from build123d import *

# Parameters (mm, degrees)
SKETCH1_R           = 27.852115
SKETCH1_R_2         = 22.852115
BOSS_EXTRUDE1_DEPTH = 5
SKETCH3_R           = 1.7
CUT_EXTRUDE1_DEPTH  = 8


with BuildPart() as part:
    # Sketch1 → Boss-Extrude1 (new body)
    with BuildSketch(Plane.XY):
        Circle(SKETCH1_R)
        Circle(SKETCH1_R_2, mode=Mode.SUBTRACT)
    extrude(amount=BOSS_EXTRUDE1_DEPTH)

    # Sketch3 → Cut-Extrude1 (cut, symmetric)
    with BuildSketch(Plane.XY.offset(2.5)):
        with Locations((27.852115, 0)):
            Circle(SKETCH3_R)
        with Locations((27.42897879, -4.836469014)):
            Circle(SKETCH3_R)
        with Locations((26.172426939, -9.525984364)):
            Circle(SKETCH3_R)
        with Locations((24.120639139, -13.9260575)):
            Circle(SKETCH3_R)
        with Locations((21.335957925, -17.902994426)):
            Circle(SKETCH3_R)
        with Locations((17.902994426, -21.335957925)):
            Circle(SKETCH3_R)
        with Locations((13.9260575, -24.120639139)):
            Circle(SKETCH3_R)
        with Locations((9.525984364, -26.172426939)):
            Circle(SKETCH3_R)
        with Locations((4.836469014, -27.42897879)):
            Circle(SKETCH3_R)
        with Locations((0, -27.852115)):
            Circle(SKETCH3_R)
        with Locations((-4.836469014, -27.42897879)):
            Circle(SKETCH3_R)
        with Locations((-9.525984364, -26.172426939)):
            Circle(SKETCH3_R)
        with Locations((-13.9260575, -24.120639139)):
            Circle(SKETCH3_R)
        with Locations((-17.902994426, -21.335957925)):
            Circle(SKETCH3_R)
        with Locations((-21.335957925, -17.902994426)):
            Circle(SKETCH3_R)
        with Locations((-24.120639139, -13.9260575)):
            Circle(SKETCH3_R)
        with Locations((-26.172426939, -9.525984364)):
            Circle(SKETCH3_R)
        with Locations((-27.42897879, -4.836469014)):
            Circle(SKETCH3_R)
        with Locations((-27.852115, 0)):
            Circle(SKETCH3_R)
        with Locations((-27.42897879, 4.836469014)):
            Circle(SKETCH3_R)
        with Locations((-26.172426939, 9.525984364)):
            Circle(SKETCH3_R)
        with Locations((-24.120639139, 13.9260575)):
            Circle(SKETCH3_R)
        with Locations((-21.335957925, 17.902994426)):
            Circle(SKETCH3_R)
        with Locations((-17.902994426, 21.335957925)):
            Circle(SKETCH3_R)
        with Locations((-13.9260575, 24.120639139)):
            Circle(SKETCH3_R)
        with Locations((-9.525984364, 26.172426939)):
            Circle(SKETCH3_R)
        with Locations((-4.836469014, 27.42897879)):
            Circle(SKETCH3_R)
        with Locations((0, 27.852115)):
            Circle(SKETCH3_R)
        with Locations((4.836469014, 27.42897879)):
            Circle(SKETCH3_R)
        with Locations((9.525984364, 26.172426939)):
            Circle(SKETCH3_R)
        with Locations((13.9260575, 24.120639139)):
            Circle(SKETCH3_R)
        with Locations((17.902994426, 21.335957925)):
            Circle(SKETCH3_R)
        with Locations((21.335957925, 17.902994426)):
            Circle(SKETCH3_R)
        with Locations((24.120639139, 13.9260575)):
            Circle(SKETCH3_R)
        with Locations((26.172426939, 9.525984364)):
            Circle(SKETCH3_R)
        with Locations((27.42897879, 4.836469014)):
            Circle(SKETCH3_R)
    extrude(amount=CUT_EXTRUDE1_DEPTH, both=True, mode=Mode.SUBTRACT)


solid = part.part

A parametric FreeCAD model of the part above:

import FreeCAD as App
import Part
import Sketcher

V = App.Vector

doc = App.newDocument("Part")
params = doc.addObject("Spreadsheet::Sheet", "Params")
for row, (alias, value) in enumerate([
    ("pad1_length", "5 mm"),
    ("sketch2_diameter", "3.4 mm"),
    ("pocket1_length", "16 mm"),
], start=1):
    params.set(f"A{row}", alias)
    params.set(f"B{row}", "=" + value)
    params.setAlias(f"B{row}", alias)

body = doc.addObject("PartDesign::Body", "Body")

sketch1 = body.newObject("Sketcher::SketchObject", "Sketch")
sketch1.AttachmentSupport = (doc.getObject("XY_Plane"), [""])
sketch1.MapMode = "FlatFace"
sketch1.addGeometry([
    Part.Circle(V(0, 0, 0), V(0, 0, 1), 27.852115),
    Part.Circle(V(0, 0, 0), V(0, 0, 1), 22.852115),
], False)
sketch1.addConstraint([
    Sketcher.Constraint("Coincident", 0, 3, -1, 1),
    Sketcher.Constraint("Coincident", 1, 3, -1, 1),
    Sketcher.Constraint("Diameter", 0, 55.70423),
    Sketcher.Constraint("Diameter", 1, 45.70423),
])
pad1 = body.newObject("PartDesign::Pad", "Pad")
pad1.Profile = sketch1
pad1.setExpression("Length", "Params.pad1_length")

sketch2 = body.newObject("Sketcher::SketchObject", "Sketch001")
sketch2.AttachmentSupport = (doc.getObject("XY_Plane"), [""])
sketch2.MapMode = "FlatFace"
sketch2.AttachmentOffset = App.Placement(V(0, 0, 2.5), App.Rotation())
sketch2.addGeometry([
    Part.Circle(V(27.852115, 0, 0), V(0, 0, 1), 1.7),
    Part.Circle(V(27.428979, -4.836469, 0), V(0, 0, 1), 1.7),
    Part.Circle(V(26.172427, -9.525984, 0), V(0, 0, 1), 1.7),
    Part.Circle(V(24.120639, -13.926058, 0), V(0, 0, 1), 1.7),
    Part.Circle(V(21.335958, -17.902994, 0), V(0, 0, 1), 1.7),
    Part.Circle(V(17.902994, -21.335958, 0), V(0, 0, 1), 1.7),
    Part.Circle(V(13.926058, -24.120639, 0), V(0, 0, 1), 1.7),
    Part.Circle(V(9.525984, -26.172427, 0), V(0, 0, 1), 1.7),
    Part.Circle(V(4.836469, -27.428979, 0), V(0, 0, 1), 1.7),
    Part.Circle(V(0, -27.852115, 0), V(0, 0, 1), 1.7),
    Part.Circle(V(-4.836469, -27.428979, 0), V(0, 0, 1), 1.7),
    Part.Circle(V(-9.525984, -26.172427, 0), V(0, 0, 1), 1.7),
    Part.Circle(V(-13.926058, -24.120639, 0), V(0, 0, 1), 1.7),
    Part.Circle(V(-17.902994, -21.335958, 0), V(0, 0, 1), 1.7),
    Part.Circle(V(-21.335958, -17.902994, 0), V(0, 0, 1), 1.7),
    Part.Circle(V(-24.120639, -13.926058, 0), V(0, 0, 1), 1.7),
    Part.Circle(V(-26.172427, -9.525984, 0), V(0, 0, 1), 1.7),
    Part.Circle(V(-27.428979, -4.836469, 0), V(0, 0, 1), 1.7),
    Part.Circle(V(-27.852115, 0, 0), V(0, 0, 1), 1.7),
    Part.Circle(V(-27.428979, 4.836469, 0), V(0, 0, 1), 1.7),
    Part.Circle(V(-26.172427, 9.525984, 0), V(0, 0, 1), 1.7),
    Part.Circle(V(-24.120639, 13.926058, 0), V(0, 0, 1), 1.7),
    Part.Circle(V(-21.335958, 17.902994, 0), V(0, 0, 1), 1.7),
    Part.Circle(V(-17.902994, 21.335958, 0), V(0, 0, 1), 1.7),
    Part.Circle(V(-13.926058, 24.120639, 0), V(0, 0, 1), 1.7),
    Part.Circle(V(-9.525984, 26.172427, 0), V(0, 0, 1), 1.7),
    Part.Circle(V(-4.836469, 27.428979, 0), V(0, 0, 1), 1.7),
    Part.Circle(V(0, 27.852115, 0), V(0, 0, 1), 1.7),
    Part.Circle(V(4.836469, 27.428979, 0), V(0, 0, 1), 1.7),
    Part.Circle(V(9.525984, 26.172427, 0), V(0, 0, 1), 1.7),
    Part.Circle(V(13.926058, 24.120639, 0), V(0, 0, 1), 1.7),
    Part.Circle(V(17.902994, 21.335958, 0), V(0, 0, 1), 1.7),
    Part.Circle(V(21.335958, 17.902994, 0), V(0, 0, 1), 1.7),
    Part.Circle(V(24.120639, 13.926058, 0), V(0, 0, 1), 1.7),
    Part.Circle(V(26.172427, 9.525984, 0), V(0, 0, 1), 1.7),
    Part.Circle(V(27.428979, 4.836469, 0), V(0, 0, 1), 1.7),
], False)
sketch2.addConstraint([
    Sketcher.Constraint("Equal", 0, 1),
    Sketcher.Constraint("Equal", 1, 2),
    Sketcher.Constraint("Equal", 2, 3),
    Sketcher.Constraint("Equal", 3, 4),
    Sketcher.Constraint("Equal", 4, 5),
    Sketcher.Constraint("Equal", 5, 6),
    Sketcher.Constraint("Equal", 6, 7),
    Sketcher.Constraint("Equal", 7, 8),
    Sketcher.Constraint("Equal", 8, 9),
    Sketcher.Constraint("Equal", 9, 10),
    Sketcher.Constraint("Equal", 10, 11),
    Sketcher.Constraint("Equal", 11, 12),
    Sketcher.Constraint("Equal", 12, 13),
    Sketcher.Constraint("Equal", 13, 14),
    Sketcher.Constraint("Equal", 14, 15),
    Sketcher.Constraint("Equal", 15, 16),
    Sketcher.Constraint("Equal", 16, 17),
    Sketcher.Constraint("Equal", 17, 18),
    Sketcher.Constraint("Equal", 18, 19),
    Sketcher.Constraint("Equal", 19, 20),
    Sketcher.Constraint("Equal", 20, 21),
    Sketcher.Constraint("Equal", 21, 22),
    Sketcher.Constraint("Equal", 22, 23),
    Sketcher.Constraint("Equal", 23, 24),
    Sketcher.Constraint("Equal", 24, 25),
    Sketcher.Constraint("Equal", 25, 26),
    Sketcher.Constraint("Equal", 26, 27),
    Sketcher.Constraint("Equal", 27, 28),
    Sketcher.Constraint("Equal", 28, 29),
    Sketcher.Constraint("Equal", 29, 30),
    Sketcher.Constraint("Equal", 30, 31),
    Sketcher.Constraint("Equal", 31, 32),
    Sketcher.Constraint("Equal", 32, 33),
    Sketcher.Constraint("Equal", 33, 34),
    Sketcher.Constraint("Equal", 34, 35),
    Sketcher.Constraint("Symmetric", 0, 3, 18, 3, -1, 1),
    Sketcher.Constraint("Symmetric", 1, 3, 19, 3, -1, 1),
    Sketcher.Constraint("Symmetric", 2, 3, 20, 3, -1, 1),
    Sketcher.Constraint("Symmetric", 3, 3, 21, 3, -1, 1),
    Sketcher.Constraint("Symmetric", 4, 3, 22, 3, -1, 1),
    Sketcher.Constraint("Symmetric", 5, 3, 23, 3, -1, 1),
    Sketcher.Constraint("Symmetric", 6, 3, 24, 3, -1, 1),
    Sketcher.Constraint("Symmetric", 7, 3, 25, 3, -1, 1),
    Sketcher.Constraint("Symmetric", 8, 3, 26, 3, -1, 1),
    Sketcher.Constraint("Symmetric", 9, 3, 27, 3, -1, 1),
    Sketcher.Constraint("Symmetric", 10, 3, 28, 3, -1, 1),
    Sketcher.Constraint("Symmetric", 11, 3, 29, 3, -1, 1),
    Sketcher.Constraint("Symmetric", 12, 3, 30, 3, -1, 1),
    Sketcher.Constraint("Symmetric", 13, 3, 31, 3, -1, 1),
    Sketcher.Constraint("Symmetric", 14, 3, 32, 3, -1, 1),
    Sketcher.Constraint("Symmetric", 15, 3, 33, 3, -1, 1),
    Sketcher.Constraint("Symmetric", 16, 3, 34, 3, -1, 1),
    Sketcher.Constraint("Symmetric", 17, 3, 35, 3, -1, 1),
    Sketcher.Constraint("Symmetric", 8, 3, 10, 3, -2),
    Sketcher.Constraint("Symmetric", 7, 3, 11, 3, -2),
    Sketcher.Constraint("Symmetric", 6, 3, 12, 3, -2),
    Sketcher.Constraint("Symmetric", 5, 3, 13, 3, -2),
    Sketcher.Constraint("Symmetric", 4, 3, 14, 3, -2),
    Sketcher.Constraint("Symmetric", 3, 3, 15, 3, -2),
    Sketcher.Constraint("Symmetric", 2, 3, 16, 3, -2),
    Sketcher.Constraint("Symmetric", 1, 3, 17, 3, -2),
    Sketcher.Constraint("PointOnObject", 0, 3, -1),
    Sketcher.Constraint("PointOnObject", 9, 3, -2),
    Sketcher.Constraint("Diameter", 0, 3.4),
    Sketcher.Constraint("DistanceY", 5, 3, 3, 3, 7.4099),
    Sketcher.Constraint("DistanceX", 6, 3, 4, 3, 7.4099),
    Sketcher.Constraint("DistanceX", -1, 1, 1, 3, 27.428979),
    Sketcher.Constraint("DistanceY", 1, 3, -1, 1, 4.836469),
    Sketcher.Constraint("DistanceX", -1, 1, 3, 3, 24.120639),
    Sketcher.Constraint("DistanceY", 6, 3, -1, 1, 24.120639),
    Sketcher.Constraint("DistanceX", -1, 1, 8, 3, 4.836469),
    Sketcher.Constraint("DistanceY", 8, 3, -1, 1, 27.428979),
    Sketcher.Constraint("DistanceX", 2, 3, 1, 3, 1.256552),
    Sketcher.Constraint("DistanceX", 2, 3, 0, 3, 1.679688),
    Sketcher.Constraint("DistanceY", 3, 3, 1, 3, 9.089588),
    Sketcher.Constraint("DistanceX", 4, 3, 3, 3, 2.784681),
    Sketcher.Constraint("DistanceY", 4, 3, 2, 3, 8.37701),
    Sketcher.Constraint("DistanceX", 5, 3, 0, 3, 9.949121),
    Sketcher.Constraint("DistanceX", 7, 3, 5, 3, 8.37701),
    Sketcher.Constraint("DistanceY", 7, 3, 5, 3, 4.836469),
    Sketcher.Constraint("DistanceY", 9, 3, 7, 3, 1.679688),
    Sketcher.Constraint("DistanceY", 9, 3, 4, 3, 9.949121),
])
sketch2.setExpression("Constraints[63]", "Params.sketch2_diameter")
pocket1 = body.newObject("PartDesign::Pocket", "Pocket")
pocket1.Profile = sketch2
pocket1.setExpression("Length", "Params.pocket1_length")
pocket1.Midplane = True

doc.recompute()
